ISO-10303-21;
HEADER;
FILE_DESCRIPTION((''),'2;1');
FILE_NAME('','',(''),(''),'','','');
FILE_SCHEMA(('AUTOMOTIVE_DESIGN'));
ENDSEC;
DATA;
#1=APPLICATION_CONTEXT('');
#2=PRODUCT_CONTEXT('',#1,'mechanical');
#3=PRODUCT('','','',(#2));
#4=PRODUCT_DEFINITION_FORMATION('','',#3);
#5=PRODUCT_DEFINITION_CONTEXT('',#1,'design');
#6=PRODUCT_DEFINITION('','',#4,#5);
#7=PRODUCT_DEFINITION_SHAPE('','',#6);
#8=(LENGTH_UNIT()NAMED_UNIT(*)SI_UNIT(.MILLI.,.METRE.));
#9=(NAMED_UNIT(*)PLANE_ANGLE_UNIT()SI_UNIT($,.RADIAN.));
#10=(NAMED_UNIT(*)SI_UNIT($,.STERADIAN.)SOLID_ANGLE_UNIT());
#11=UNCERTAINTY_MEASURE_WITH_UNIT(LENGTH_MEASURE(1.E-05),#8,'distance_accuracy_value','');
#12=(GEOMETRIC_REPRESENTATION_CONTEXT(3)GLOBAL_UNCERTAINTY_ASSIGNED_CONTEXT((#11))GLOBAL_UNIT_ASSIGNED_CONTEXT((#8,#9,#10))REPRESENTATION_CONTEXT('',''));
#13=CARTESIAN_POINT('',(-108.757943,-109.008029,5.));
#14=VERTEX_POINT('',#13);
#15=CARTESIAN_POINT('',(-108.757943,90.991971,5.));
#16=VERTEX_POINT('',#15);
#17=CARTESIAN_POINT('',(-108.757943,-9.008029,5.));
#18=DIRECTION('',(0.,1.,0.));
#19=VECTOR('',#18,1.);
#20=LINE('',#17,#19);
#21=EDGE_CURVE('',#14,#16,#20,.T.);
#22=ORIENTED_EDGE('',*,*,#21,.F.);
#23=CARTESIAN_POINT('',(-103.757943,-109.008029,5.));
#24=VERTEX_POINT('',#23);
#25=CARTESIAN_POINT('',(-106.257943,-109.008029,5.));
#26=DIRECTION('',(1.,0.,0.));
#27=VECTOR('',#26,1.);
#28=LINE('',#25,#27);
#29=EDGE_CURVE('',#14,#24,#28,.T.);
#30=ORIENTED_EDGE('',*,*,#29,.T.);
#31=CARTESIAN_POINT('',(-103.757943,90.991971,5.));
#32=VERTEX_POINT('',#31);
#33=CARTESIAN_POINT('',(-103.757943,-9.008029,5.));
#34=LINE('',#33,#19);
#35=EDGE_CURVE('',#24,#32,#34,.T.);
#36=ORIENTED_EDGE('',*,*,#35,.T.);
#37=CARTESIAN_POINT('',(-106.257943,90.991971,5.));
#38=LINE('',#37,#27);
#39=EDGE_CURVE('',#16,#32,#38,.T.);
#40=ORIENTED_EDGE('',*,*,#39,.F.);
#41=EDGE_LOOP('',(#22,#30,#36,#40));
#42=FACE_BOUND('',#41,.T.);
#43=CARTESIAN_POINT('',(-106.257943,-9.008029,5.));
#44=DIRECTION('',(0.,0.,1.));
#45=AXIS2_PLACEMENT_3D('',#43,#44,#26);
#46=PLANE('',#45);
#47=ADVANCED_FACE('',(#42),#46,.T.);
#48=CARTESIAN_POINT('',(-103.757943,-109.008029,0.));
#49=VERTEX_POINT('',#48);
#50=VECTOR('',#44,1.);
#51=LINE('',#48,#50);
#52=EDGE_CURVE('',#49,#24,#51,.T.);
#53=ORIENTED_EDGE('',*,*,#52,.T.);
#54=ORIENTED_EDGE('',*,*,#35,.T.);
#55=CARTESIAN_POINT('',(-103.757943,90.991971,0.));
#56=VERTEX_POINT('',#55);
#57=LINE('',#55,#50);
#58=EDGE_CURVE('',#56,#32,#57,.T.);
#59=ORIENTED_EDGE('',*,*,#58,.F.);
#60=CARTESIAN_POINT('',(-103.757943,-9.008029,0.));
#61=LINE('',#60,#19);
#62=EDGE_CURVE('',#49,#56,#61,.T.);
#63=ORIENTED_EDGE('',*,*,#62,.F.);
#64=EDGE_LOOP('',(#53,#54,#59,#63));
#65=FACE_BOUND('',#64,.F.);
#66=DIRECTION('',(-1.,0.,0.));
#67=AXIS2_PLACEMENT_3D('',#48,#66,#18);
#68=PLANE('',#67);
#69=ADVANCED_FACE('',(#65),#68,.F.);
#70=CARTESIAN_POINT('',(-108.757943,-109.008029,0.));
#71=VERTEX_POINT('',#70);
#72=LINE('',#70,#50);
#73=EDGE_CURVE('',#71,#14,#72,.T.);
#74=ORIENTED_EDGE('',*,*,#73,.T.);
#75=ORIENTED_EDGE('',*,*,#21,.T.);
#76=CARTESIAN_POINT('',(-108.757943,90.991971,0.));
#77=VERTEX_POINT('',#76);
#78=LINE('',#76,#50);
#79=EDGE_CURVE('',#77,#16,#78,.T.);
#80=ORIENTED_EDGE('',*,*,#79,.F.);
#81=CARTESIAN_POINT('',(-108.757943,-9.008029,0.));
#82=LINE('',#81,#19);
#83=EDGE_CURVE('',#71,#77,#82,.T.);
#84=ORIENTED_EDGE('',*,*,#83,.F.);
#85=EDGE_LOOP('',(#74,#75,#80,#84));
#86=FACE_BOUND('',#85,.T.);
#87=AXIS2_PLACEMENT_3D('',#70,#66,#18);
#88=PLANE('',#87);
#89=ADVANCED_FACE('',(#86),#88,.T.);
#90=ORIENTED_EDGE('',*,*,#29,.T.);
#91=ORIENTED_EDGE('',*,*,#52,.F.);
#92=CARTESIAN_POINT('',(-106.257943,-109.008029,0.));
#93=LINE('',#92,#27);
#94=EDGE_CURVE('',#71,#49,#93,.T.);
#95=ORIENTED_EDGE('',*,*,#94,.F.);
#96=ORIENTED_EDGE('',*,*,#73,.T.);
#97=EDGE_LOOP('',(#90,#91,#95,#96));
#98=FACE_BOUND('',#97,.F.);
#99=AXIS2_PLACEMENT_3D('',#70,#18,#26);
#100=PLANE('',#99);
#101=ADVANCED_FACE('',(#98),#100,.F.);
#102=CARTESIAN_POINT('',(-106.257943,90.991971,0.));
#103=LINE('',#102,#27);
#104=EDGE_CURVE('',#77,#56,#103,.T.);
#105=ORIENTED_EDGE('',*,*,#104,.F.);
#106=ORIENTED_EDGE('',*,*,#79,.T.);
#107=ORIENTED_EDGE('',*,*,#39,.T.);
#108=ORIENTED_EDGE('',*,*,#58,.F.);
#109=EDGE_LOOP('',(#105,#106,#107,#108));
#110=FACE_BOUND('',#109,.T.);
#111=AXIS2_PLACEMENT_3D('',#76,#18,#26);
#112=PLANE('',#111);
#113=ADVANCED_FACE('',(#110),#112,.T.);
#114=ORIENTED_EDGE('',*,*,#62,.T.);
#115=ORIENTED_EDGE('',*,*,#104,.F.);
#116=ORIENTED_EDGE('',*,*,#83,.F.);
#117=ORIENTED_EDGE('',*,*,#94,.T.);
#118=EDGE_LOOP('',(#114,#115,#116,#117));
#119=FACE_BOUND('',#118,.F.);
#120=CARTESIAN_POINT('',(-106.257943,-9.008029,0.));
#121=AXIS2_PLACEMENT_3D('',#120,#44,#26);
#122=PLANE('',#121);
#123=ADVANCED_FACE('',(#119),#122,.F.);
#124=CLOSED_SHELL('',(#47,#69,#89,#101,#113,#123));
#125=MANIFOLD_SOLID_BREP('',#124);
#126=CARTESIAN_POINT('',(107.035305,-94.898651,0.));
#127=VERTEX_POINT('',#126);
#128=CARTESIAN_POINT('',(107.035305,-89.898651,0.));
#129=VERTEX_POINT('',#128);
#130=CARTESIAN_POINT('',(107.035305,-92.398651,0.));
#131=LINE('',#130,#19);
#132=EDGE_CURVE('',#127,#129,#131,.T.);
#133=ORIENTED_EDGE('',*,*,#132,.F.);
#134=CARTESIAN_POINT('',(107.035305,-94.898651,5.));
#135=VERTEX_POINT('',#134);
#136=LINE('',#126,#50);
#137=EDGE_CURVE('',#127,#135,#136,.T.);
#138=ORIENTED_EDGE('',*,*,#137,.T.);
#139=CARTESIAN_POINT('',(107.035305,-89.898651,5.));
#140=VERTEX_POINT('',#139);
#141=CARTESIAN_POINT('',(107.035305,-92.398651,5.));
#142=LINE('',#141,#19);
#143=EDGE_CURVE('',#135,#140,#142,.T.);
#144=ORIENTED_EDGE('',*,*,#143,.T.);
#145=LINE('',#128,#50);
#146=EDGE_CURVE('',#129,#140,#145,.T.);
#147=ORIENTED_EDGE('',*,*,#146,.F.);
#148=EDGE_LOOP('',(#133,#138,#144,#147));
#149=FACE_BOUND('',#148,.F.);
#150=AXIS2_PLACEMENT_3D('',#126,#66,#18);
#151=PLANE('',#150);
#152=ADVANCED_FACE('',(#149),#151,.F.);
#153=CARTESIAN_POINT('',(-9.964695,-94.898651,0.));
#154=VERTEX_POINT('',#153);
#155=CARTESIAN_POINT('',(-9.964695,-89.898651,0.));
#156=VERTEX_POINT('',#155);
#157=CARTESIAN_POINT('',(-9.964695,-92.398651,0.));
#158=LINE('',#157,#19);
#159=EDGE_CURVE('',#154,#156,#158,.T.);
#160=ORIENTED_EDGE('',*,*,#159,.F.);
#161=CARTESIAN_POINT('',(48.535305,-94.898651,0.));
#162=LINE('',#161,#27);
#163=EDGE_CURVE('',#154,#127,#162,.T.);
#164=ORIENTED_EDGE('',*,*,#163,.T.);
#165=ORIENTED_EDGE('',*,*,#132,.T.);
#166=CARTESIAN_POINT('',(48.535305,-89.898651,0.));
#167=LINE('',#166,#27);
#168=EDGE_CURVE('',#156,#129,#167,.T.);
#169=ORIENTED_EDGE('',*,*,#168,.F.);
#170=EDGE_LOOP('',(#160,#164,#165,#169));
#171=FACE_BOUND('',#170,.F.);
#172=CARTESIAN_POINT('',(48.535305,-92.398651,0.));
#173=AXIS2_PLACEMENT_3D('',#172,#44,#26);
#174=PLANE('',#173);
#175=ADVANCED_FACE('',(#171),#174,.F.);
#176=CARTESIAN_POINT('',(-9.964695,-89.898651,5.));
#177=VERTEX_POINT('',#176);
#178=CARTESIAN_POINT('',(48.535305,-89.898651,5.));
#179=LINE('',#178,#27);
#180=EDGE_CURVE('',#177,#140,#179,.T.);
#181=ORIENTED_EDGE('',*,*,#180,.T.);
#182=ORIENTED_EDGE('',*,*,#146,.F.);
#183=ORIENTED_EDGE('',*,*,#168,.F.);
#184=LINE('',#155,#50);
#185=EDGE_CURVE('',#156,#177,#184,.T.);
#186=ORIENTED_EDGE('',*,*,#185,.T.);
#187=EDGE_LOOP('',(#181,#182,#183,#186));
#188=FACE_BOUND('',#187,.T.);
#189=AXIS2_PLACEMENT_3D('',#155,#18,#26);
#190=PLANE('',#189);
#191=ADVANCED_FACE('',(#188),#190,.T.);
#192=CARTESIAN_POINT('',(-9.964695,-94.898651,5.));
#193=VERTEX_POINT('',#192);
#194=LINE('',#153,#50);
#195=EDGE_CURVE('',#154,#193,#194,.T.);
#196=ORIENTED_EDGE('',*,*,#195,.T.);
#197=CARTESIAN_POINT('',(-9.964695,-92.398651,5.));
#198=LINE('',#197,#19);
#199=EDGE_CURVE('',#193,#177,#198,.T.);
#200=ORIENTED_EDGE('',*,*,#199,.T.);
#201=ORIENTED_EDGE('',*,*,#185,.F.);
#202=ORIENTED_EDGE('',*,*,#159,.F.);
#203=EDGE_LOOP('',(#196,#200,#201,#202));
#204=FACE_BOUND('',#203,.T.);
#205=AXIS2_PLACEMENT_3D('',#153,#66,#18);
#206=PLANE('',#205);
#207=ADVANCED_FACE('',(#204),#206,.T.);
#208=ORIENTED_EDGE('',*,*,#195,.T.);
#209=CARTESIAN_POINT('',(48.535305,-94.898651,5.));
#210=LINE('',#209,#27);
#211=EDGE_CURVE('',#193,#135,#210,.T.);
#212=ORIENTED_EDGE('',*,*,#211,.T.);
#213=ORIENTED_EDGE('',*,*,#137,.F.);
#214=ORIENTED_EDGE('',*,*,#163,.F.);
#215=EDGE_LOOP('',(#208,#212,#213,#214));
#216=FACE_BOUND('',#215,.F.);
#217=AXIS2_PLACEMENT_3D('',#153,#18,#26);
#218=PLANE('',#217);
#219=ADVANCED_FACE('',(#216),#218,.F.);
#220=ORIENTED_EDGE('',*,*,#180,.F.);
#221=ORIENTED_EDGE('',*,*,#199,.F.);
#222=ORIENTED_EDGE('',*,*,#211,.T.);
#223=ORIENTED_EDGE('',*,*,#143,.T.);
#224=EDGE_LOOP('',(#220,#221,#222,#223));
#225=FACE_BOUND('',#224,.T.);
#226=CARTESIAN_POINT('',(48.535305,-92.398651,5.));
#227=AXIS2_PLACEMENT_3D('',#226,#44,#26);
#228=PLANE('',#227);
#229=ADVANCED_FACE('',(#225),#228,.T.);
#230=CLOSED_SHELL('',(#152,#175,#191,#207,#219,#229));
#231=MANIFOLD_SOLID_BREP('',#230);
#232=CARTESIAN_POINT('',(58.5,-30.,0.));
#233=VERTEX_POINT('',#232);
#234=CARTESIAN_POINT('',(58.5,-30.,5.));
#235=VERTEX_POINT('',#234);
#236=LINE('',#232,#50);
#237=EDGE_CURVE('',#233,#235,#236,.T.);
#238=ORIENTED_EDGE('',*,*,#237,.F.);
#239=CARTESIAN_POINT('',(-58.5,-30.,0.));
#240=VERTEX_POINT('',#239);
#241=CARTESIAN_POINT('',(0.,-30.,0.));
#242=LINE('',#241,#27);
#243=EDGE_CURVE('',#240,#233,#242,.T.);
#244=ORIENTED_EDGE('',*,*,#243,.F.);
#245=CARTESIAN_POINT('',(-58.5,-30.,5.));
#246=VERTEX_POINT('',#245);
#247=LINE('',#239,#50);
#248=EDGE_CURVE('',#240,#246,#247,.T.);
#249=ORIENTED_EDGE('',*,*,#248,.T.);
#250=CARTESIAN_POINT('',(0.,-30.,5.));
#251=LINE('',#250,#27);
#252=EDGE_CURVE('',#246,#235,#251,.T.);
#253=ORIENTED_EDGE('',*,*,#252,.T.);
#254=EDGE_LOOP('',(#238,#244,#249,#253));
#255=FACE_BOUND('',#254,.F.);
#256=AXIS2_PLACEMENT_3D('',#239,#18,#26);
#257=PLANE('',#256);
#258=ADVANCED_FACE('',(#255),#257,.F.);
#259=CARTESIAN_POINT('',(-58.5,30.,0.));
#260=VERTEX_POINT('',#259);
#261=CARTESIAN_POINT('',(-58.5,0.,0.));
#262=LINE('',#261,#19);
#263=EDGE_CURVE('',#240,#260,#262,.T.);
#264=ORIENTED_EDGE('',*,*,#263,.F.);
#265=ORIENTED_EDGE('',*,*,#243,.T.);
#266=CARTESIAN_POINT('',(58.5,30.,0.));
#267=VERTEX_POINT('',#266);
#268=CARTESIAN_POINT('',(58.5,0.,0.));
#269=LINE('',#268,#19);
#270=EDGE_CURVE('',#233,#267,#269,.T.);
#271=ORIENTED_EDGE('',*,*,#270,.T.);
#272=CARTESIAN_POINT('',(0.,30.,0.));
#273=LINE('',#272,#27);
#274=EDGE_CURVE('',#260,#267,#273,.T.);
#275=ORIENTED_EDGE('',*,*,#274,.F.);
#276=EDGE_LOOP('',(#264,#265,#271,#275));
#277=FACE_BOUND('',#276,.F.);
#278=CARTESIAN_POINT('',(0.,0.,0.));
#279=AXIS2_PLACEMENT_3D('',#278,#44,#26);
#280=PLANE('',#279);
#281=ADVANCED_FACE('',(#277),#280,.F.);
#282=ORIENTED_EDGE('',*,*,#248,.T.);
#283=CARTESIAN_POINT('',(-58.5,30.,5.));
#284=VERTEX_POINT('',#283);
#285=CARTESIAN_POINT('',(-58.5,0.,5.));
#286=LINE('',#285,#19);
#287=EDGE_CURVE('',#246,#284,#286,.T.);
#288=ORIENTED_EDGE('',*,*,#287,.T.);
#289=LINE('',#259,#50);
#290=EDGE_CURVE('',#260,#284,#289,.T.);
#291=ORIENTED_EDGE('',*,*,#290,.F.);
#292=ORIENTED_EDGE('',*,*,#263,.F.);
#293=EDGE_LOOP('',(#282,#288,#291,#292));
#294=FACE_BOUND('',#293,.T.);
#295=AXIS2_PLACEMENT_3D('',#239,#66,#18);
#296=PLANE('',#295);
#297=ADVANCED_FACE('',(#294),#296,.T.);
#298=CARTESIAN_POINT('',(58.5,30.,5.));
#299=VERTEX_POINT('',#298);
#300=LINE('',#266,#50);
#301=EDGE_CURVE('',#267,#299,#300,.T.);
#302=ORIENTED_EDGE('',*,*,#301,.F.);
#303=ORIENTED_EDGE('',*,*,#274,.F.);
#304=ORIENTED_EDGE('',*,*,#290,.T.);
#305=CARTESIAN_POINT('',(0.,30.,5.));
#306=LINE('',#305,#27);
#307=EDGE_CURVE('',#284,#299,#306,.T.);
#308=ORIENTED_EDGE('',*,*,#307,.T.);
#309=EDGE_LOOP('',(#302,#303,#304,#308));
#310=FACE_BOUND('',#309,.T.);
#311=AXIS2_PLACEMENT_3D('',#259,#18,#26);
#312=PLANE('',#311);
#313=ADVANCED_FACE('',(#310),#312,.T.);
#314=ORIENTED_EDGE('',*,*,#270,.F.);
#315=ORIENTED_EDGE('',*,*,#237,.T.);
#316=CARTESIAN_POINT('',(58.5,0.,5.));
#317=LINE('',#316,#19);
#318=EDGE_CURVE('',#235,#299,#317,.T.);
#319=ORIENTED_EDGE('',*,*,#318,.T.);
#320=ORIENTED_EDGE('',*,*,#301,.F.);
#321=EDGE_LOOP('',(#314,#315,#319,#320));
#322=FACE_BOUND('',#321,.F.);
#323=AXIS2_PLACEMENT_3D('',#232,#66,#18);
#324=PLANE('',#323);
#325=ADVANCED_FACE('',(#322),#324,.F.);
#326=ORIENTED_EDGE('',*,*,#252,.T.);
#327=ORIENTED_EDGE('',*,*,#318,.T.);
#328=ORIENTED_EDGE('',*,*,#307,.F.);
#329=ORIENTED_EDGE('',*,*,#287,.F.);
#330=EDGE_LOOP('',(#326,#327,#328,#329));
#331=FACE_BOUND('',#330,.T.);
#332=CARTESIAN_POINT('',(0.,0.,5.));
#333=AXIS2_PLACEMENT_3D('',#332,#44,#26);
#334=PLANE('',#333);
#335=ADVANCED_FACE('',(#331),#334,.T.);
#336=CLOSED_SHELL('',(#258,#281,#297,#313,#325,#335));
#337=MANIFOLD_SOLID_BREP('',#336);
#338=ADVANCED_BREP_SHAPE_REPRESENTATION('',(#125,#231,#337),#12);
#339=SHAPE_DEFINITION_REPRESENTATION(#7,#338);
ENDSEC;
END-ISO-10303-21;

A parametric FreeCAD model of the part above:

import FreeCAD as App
import Part
import Sketcher

doc = App.newDocument("Part")
params = doc.addObject("Spreadsheet::Sheet", "Params")
for row, (alias, value) in enumerate([
    ("sketch1_width", "117 mm"),
    ("sketch1_height", "60 mm"),
    ("pad1_length", "5 mm"),
    ("sketch2_width", "5 mm"),
    ("sketch2_height", "200 mm"),
    ("pad2_length", "5 mm"),
    ("sketch3_width", "117 mm"),
    ("sketch3_height", "5 mm"),
    ("pad3_length", "5 mm"),
], start=1):
    params.set(f"A{row}", alias)
    params.set(f"B{row}", "=" + value)
    params.setAlias(f"B{row}", alias)

body = doc.addObject("PartDesign::Body", "Body")

sketch1 = body.newObject("Sketcher::SketchObject", "Sketch")
sketch1.AttachmentSupport = (doc.getObject("XY_Plane"), [""])
sketch1.MapMode = "FlatFace"
sketch1.addGeometry(Part.LineSegment(App.Vector(-58, 30, 0), App.Vector(-58, -30, 0)), False)
sketch1.addGeometry(Part.LineSegment(App.Vector(-58, -30, 0), App.Vector(58, -30, 0)), False)
sketch1.addGeometry(Part.LineSegment(App.Vector(58, -30, 0), App.Vector(58, 30, 0)), False)
sketch1.addGeometry(Part.LineSegment(App.Vector(58, 30, 0), App.Vector(-58, 30, 0)), False)
sketch1.addConstraint(Sketcher.Constraint("Coincident", 0, 2, 1, 1))
sketch1.addConstraint(Sketcher.Constraint("Coincident", 1, 2, 2, 1))
sketch1.addConstraint(Sketcher.Constraint("Coincident", 2, 2, 3, 1))
sketch1.addConstraint(Sketcher.Constraint("Coincident", 3, 2, 0, 1))
sketch1.addConstraint(Sketcher.Constraint("Vertical", 0))
sketch1.addConstraint(Sketcher.Constraint("Horizontal", 1))
sketch1.addConstraint(Sketcher.Constraint("Vertical", 2))
sketch1.addConstraint(Sketcher.Constraint("Horizontal", 3))
sketch1.addConstraint(Sketcher.Constraint("Symmetric", 0, 2, 2, 2, -1, 1))
sketch1.addConstraint(Sketcher.Constraint("DistanceX", 1, 1, 1, 2, 117.0))
sketch1.addConstraint(Sketcher.Constraint("DistanceY", 0, 2, 0, 1, 60.0))
sketch1.setExpression("Constraints[9]", "Params.sketch1_width")
sketch1.setExpression("Constraints[10]", "Params.sketch1_height")
pad1 = body.newObject("PartDesign::Pad", "Pad")
pad1.Profile = sketch1
pad1.setExpression("Length", "Params.pad1_length")
body2 = doc.addObject("PartDesign::Body", "Body001")

sketch2 = body2.newObject("Sketcher::SketchObject", "Sketch001")
sketch2.AttachmentSupport = (doc.getObject("XY_Plane001"), [""])
sketch2.MapMode = "FlatFace"
sketch2.addGeometry(Part.LineSegment(App.Vector(-109, 91, 0), App.Vector(-109, -109, 0)), False)
sketch2.addGeometry(Part.LineSegment(App.Vector(-109, -109, 0), App.Vector(-104, -109, 0)), False)
sketch2.addGeometry(Part.LineSegment(App.Vector(-104, -109, 0), App.Vector(-104, 91, 0)), False)
sketch2.addGeometry(Part.LineSegment(App.Vector(-104, 91, 0), App.Vector(-109, 91, 0)), False)
sketch2.addConstraint(Sketcher.Constraint("Coincident", 0, 2, 1, 1))
sketch2.addConstraint(Sketcher.Constraint("Coincident", 1, 2, 2, 1))
sketch2.addConstraint(Sketcher.Constraint("Coincident", 2, 2, 3, 1))
sketch2.addConstraint(Sketcher.Constraint("Coincident", 3, 2, 0, 1))
sketch2.addConstraint(Sketcher.Constraint("Vertical", 0))
sketch2.addConstraint(Sketcher.Constraint("Horizontal", 1))
sketch2.addConstraint(Sketcher.Constraint("Vertical", 2))
sketch2.addConstraint(Sketcher.Constraint("Horizontal", 3))
sketch2.addConstraint(Sketcher.Constraint("DistanceX", 1, 1, 1, 2, 5.0))
sketch2.addConstraint(Sketcher.Constraint("DistanceY", 0, 2, 0, 1, 200.0))
sketch2.addConstraint(Sketcher.Constraint("DistanceY", 0, 2, -1, 1, 109.008029))
sketch2.addConstraint(Sketcher.Constraint("DistanceX", 0, 2, -1, 1, 108.757943))
sketch2.setExpression("Constraints[8]", "Params.sketch2_width")
sketch2.setExpression("Constraints[9]", "Params.sketch2_height")
pad2 = body2.newObject("PartDesign::Pad", "Pad001")
pad2.Profile = sketch2
pad2.setExpression("Length", "Params.pad2_length")
body3 = doc.addObject("PartDesign::Body", "Body002")

sketch3 = body3.newObject("Sketcher::SketchObject", "Sketch002")
sketch3.AttachmentSupport = (doc.getObject("XY_Plane002"), [""])
sketch3.MapMode = "FlatFace"
sketch3.addGeometry(Part.LineSegment(App.Vector(-10, -90, 0), App.Vector(-10, -95, 0)), False)
sketch3.addGeometry(Part.LineSegment(App.Vector(-10, -95, 0), App.Vector(107, -95, 0)), False)
sketch3.addGeometry(Part.LineSegment(App.Vector(107, -95, 0), App.Vector(107, -90, 0)), False)
sketch3.addGeometry(Part.LineSegment(App.Vector(107, -90, 0), App.Vector(-10, -90, 0)), False)
sketch3.addConstraint(Sketcher.Constraint("Coincident", 0, 2, 1, 1))
sketch3.addConstraint(Sketcher.Constraint("Coincident", 1, 2, 2, 1))
sketch3.addConstraint(Sketcher.Constraint("Coincident", 2, 2, 3, 1))
sketch3.addConstraint(Sketcher.Constraint("Coincident", 3, 2, 0, 1))
sketch3.addConstraint(Sketcher.Constraint("Vertical", 0))
sketch3.addConstraint(Sketcher.Constraint("Horizontal", 1))
sketch3.addConstraint(Sketcher.Constraint("Vertical", 2))
sketch3.addConstraint(Sketcher.Constraint("Horizontal", 3))
sketch3.addConstraint(Sketcher.Constraint("DistanceX", 1, 1, 1, 2, 117.0))
sketch3.addConstraint(Sketcher.Constraint("DistanceY", 0, 2, 0, 1, 5.0))
sketch3.addConstraint(Sketcher.Constraint("DistanceY", 0, 2, -1, 1, 94.898651))
sketch3.addConstraint(Sketcher.Constraint("DistanceX", 0, 2, -1, 1, 9.964695))
sketch3.setExpression("Constraints[8]", "Params.sketch3_width")
sketch3.setExpression("Constraints[9]", "Params.sketch3_height")
pad3 = body3.newObject("PartDesign::Pad", "Pad002")
pad3.Profile = sketch3
pad3.setExpression("Length", "Params.pad3_length")

doc.recompute()
